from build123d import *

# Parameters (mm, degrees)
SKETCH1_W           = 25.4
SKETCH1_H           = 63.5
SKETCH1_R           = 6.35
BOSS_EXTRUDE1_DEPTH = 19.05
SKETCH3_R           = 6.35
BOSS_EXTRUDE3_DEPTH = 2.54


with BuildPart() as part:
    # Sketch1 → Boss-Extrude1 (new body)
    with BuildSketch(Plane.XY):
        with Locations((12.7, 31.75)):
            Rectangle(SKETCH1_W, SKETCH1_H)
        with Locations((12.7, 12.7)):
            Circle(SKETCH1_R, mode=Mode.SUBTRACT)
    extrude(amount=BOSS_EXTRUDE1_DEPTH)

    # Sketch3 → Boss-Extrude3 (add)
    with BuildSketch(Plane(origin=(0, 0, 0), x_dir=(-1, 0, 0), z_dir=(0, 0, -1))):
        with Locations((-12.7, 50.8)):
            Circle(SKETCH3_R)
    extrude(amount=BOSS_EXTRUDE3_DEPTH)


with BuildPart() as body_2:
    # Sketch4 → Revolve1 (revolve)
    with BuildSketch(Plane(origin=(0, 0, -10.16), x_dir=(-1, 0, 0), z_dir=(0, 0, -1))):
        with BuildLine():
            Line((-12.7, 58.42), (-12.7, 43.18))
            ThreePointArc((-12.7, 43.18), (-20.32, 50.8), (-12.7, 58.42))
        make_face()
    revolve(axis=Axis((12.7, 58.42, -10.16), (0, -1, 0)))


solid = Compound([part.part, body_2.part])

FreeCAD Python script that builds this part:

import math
import FreeCAD as App
import Part
import Sketcher

V = App.Vector
Q = App.Units.Quantity

doc = App.newDocument("Part")
body = doc.addObject("PartDesign::Body", "Body")

sketch1 = doc.addObject("Sketcher::SketchObject", "Sketch")
body.addObject(sketch1)
sketch1.AttachmentSupport = (doc.XY_Plane, [""])
sketch1.MapMode = "FlatFace"
sketch1.addGeometry([
    Part.LineSegment(V(0, 64, 0), V(0, 0, 0)),
    Part.LineSegment(V(0, 0, 0), V(25, 0, 0)),
    Part.LineSegment(V(25, 0, 0), V(25, 64, 0)),
    Part.LineSegment(V(25, 64, 0), V(0, 64, 0)),
    Part.Circle(V(13, 13, 0), V(0, 0, 1), 6),
], False)
sketch1.addConstraint([
    Sketcher.Constraint("Coincident", 0, 2, 1, 1),
    Sketcher.Constraint("Coincident", 1, 2, 2, 1),
    Sketcher.Constraint("Coincident", 2, 2, 3, 1),
    Sketcher.Constraint("Coincident", 3, 2, 0, 1),
    Sketcher.Constraint("Vertical", 0),
    Sketcher.Constraint("Horizontal", 1),
    Sketcher.Constraint("Vertical", 2),
    Sketcher.Constraint("Horizontal", 3),
    Sketcher.Constraint("Coincident", 0, 2, -1, 1),
    Sketcher.Constraint("Diameter", 4, Q("0.5 in")),
    Sketcher.Constraint("DistanceX", 1, 1, 1, 2, Q("1 in")),
    Sketcher.Constraint("DistanceY", 0, 2, 0, 1, Q("2.5 in")),
    Sketcher.Constraint("DistanceY", 4, 3, 2, 2, Q("2 in")),
    Sketcher.Constraint("DistanceX", -1, 1, 4, 3, Q("0.5 in")),
])
pad1 = doc.addObject("PartDesign::Pad", "Pad")
body.addObject(pad1)
pad1.Profile = sketch1
pad1.Length = Q("0.75 in")

sketch2 = doc.addObject("Sketcher::SketchObject", "Sketch001")
body.addObject(sketch2)
sketch2.AttachmentSupport = (doc.XY_Plane, [""])
sketch2.MapMode = "FlatFace"
sketch2.addGeometry(Part.Circle(V(13, 51, 0), V(0, 0, 1), 6), False)
sketch2.addConstraint([
    Sketcher.Constraint("Diameter", 0, Q("0.5 in")),
    Sketcher.Constraint("DistanceY", -1, 1, 0, 3, Q("2 in")),
    Sketcher.Constraint("DistanceX", -1, 1, 0, 3, Q("0.5 in")),
])
pad2 = doc.addObject("PartDesign::Pad", "Pad001")
body.addObject(pad2)
pad2.Profile = sketch2
pad2.Length = Q("0.1 in")
pad2.Reversed = True
body2 = doc.addObject("PartDesign::Body", "Body001")

sketch3 = doc.addObject("Sketcher::SketchObject", "Sketch002")
body2.addObject(sketch3)
sketch3.AttachmentSupport = (doc.getObject("XY_Plane001"), [""])
sketch3.MapMode = "FlatFace"
sketch3.AttachmentOffset = App.Placement(V(0, 0, -0.4 * 25.4), App.Rotation())
sketch3.addGeometry([
    Part.LineSegment(V(13, 43, 0), V(13, 58, 0)),
    Part.ArcOfCircle(Part.Circle(V(13, 51, 0), V(0, 0, 1), 8), math.radians(-90), math.radians(90)),
], False)
sketch3.addGeometry(Part.LineSegment(V(13, 58, 0), V(13, 43, 0)), True)
sketch3.addConstraint([
    Sketcher.Constraint("Coincident", 0, 1, 1, 1),
    Sketcher.Constraint("Coincident", 1, 2, 0, 2),
    Sketcher.Constraint("Vertical", 0),
    Sketcher.Constraint("Vertical", 2),
    Sketcher.Constraint("Coincident", 2, 1, 1, 2),
    Sketcher.Constraint("Vertical", 1, 3, 0, 1),
    Sketcher.Constraint("Equal", 0, 2),
    Sketcher.Constraint("Radius", 1, Q("0.3 in")),
    Sketcher.Constraint("DistanceY", -1, 1, 1, 3, Q("2 in")),
    Sketcher.Constraint("DistanceX", -1, 1, 1, 3, Q("0.5 in")),
])
revolution = doc.addObject("PartDesign::Revolution", "Revolution")
body2.addObject(revolution)
revolution.Profile = sketch3
revolution.ReferenceAxis = (sketch3, ["Axis0"])
revolution.Angle = 360

doc.recompute()
